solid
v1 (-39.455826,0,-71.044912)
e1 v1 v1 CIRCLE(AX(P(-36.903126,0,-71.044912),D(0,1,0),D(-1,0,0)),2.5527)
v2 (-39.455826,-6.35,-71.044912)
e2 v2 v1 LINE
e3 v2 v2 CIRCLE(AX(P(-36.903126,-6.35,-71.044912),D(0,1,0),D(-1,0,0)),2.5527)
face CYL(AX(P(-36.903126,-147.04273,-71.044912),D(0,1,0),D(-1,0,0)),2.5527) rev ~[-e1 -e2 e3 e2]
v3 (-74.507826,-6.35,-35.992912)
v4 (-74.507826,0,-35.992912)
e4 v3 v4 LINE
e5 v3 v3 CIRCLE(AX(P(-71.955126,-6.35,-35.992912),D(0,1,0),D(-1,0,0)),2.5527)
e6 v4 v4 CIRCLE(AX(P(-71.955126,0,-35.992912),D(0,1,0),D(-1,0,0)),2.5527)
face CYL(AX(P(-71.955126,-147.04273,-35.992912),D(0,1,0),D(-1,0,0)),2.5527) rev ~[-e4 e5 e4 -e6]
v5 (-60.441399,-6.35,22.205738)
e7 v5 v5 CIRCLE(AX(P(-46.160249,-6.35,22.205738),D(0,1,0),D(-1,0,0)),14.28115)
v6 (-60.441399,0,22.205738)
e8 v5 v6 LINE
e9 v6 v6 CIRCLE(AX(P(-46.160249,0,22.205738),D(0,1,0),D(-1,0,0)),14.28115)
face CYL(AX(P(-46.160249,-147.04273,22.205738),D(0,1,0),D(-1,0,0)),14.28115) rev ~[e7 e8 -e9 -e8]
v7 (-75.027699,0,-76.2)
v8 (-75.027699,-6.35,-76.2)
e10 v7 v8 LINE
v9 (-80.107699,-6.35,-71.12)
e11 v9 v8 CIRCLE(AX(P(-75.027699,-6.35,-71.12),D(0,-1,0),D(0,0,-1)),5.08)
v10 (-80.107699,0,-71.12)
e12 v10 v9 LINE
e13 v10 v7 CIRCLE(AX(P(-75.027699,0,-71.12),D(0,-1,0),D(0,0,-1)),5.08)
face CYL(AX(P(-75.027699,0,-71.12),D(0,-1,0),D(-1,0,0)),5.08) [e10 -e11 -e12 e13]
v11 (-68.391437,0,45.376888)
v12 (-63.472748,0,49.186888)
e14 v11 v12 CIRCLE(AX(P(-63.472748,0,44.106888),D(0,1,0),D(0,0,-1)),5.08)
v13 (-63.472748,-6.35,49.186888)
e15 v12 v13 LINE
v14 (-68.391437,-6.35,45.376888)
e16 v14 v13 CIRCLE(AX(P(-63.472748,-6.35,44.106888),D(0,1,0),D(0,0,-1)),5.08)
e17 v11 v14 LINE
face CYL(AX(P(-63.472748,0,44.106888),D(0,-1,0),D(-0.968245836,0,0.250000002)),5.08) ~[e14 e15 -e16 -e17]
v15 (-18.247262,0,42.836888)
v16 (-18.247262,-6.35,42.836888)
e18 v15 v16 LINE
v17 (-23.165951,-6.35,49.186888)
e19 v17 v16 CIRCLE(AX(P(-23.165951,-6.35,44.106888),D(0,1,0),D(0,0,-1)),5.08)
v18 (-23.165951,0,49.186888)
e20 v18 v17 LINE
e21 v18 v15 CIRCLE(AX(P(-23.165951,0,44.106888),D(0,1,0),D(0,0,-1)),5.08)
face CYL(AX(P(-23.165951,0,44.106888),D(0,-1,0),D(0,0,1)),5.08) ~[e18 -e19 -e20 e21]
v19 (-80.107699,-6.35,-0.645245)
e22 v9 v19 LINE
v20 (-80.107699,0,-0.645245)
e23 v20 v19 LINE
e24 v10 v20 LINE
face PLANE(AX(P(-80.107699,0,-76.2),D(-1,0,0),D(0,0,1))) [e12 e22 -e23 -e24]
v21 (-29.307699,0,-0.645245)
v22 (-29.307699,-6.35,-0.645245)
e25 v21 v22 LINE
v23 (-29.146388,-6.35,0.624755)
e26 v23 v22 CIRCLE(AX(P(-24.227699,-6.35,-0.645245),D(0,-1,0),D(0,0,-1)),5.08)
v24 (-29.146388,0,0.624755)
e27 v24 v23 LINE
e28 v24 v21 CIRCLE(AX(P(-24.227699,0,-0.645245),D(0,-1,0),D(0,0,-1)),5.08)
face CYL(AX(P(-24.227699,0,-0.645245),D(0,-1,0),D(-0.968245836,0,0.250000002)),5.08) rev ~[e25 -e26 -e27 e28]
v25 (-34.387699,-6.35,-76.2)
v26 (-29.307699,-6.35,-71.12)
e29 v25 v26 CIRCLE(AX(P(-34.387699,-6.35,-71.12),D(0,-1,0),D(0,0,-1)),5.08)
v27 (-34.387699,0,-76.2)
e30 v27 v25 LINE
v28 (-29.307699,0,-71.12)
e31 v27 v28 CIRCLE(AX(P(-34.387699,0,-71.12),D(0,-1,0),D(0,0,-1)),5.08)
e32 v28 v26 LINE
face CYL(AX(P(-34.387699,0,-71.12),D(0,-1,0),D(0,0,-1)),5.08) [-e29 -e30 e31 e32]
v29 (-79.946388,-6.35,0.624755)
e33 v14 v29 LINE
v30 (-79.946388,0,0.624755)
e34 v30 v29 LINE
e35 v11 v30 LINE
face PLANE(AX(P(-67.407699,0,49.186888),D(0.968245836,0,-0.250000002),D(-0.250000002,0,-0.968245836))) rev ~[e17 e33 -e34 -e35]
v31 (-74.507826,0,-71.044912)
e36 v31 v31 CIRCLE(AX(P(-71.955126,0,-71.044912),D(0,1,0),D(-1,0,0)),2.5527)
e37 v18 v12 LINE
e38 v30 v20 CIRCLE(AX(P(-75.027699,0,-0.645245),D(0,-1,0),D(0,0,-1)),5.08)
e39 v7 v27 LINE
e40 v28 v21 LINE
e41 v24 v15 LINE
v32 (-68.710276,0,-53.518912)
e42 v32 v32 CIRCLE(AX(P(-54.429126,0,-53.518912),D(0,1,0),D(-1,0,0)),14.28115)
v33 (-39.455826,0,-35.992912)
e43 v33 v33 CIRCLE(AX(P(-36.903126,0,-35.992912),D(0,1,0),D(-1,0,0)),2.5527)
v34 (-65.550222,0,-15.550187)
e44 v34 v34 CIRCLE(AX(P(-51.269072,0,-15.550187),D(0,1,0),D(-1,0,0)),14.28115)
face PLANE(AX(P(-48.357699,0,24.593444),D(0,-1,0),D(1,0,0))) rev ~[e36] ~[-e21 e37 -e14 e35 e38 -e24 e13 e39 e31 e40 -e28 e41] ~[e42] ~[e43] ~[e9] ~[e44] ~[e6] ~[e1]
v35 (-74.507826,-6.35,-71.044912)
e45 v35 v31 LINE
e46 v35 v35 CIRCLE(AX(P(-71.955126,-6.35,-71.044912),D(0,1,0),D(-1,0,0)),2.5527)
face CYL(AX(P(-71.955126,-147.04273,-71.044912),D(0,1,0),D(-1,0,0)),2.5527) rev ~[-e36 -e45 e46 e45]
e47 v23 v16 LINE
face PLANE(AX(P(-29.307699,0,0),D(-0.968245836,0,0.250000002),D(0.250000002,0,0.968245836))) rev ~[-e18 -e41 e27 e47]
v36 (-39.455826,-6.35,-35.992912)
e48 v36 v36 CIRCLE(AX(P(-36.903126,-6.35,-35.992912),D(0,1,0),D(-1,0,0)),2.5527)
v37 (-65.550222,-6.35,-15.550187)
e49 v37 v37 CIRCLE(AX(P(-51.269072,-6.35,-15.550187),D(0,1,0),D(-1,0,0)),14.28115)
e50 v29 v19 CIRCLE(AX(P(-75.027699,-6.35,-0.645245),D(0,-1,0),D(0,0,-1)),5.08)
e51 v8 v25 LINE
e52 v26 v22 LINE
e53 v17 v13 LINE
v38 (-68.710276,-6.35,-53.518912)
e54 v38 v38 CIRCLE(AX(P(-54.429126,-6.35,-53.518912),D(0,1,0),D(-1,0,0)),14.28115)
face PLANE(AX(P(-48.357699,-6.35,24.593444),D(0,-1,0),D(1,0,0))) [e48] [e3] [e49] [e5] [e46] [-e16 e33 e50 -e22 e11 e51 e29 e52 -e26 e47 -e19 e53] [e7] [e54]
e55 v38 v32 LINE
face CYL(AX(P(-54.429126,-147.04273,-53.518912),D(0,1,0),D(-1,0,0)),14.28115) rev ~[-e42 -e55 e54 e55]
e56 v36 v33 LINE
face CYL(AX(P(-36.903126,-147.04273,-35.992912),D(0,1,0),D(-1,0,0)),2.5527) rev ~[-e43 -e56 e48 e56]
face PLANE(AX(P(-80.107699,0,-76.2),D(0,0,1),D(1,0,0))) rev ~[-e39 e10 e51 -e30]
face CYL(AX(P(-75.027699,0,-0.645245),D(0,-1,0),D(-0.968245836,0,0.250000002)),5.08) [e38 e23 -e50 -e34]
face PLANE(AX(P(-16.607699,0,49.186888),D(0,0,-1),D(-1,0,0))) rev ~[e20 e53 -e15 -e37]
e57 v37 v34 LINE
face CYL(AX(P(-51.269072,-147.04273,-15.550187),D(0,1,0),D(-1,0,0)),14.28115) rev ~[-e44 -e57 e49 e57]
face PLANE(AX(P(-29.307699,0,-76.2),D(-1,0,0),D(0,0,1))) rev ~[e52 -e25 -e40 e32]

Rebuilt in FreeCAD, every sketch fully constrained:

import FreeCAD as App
import Part
import Sketcher

V = App.Vector
Q = App.Units.Quantity


def edges_at(feature, points):
    """Names of the edges that pass closest to the given points."""
    edges = feature.Shape.Edges
    near = lambda p: min(range(len(edges)), key=lambda i: edges[i].distToShape(Part.Vertex(*p))[0])
    return sorted({f"Edge{near(p) + 1}" for p in points})


def add_polygon(sketch, points):
    """Adds a closed chain of lines whose ends are joined by coincident constraints."""
    first, n = sketch.GeometryCount, len(points)
    for a, b in zip(points, points[1:] + points[:1]):
        sketch.addGeometry(Part.LineSegment(App.Vector(*a, 0), App.Vector(*b, 0)), False)
    for i in range(n):
        sketch.addConstraint(Sketcher.Constraint("Coincident", first + i, 2, first + (i + 1) % n, 1))

doc = App.newDocument("Part")
body = doc.addObject("PartDesign::Body", "Body")

# Sketch on XZ plane
sketch1 = body.newObject("Sketcher::SketchObject", "Sketch")
sketch1.AttachmentSupport = (doc.getObject("XZ_Plane"), [""])
sketch1.MapMode = "FlatFace"
add_polygon(sketch1, [(-67, 49), (-80, 0), (-80, -76), (-29, -76), (-29, 0), (-17, 49)])  # lines 0-5
sketch1.addConstraint(Sketcher.Constraint("Vertical", 1))
sketch1.addConstraint(Sketcher.Constraint("Horizontal", 2))
sketch1.addConstraint(Sketcher.Constraint("Vertical", 3))
sketch1.addConstraint(Sketcher.Constraint("Horizontal", 5))
sketch1.addConstraint(Sketcher.Constraint("PointOnObject", 0, 2, -1))
sketch1.addConstraint(Sketcher.Constraint("PointOnObject", 3, 2, -1))
sketch1.addConstraint(Sketcher.Constraint("Parallel", 0, 4))
sketch1.addConstraint(Sketcher.Constraint("DistanceX", 2, 1, 2, 2, Q("2 in")))
sketch1.addConstraint(Sketcher.Constraint("DistanceY", 1, 2, 1, 1, Q("3 in")))
sketch1.addConstraint(Sketcher.Constraint("Distance", 0, Q("2 in")))
sketch1.addConstraint(Sketcher.Constraint("DistanceX", 3, 2, 4, 2, Q("0.5 in")))
sketch1.addConstraint(Sketcher.Constraint("DistanceX", 0, 2, -1, 1, Q("80.107699 mm")))
pad1 = body.newObject("PartDesign::Pad", "Pad")
pad1.Profile = sketch1
pad1.Length = Q("0.25 in")

# Sketch on XZ plane
sketch2 = body.newObject("Sketcher::SketchObject", "Sketch001")
sketch2.AttachmentSupport = (doc.getObject("XZ_Plane"), [""])
sketch2.MapMode = "FlatFace"
sketch2.AttachmentOffset = App.Placement(V(0, 0, 0.25 * 25.4), App.Rotation())
sketch2.addGeometry(Part.Circle(V(-46, 22, 0), V(0, 0, 1), 14), False)
sketch2.addGeometry(Part.Circle(V(-51, -16, 0), V(0, 0, 1), 14), False)
sketch2.addGeometry(Part.Circle(V(-54, -54, 0), V(0, 0, 1), 14), False)
sketch2.addConstraint(Sketcher.Constraint("Equal", 0, 1))
sketch2.addConstraint(Sketcher.Constraint("Equal", 1, 2))
sketch2.addConstraint(Sketcher.Constraint("Diameter", 0, Q("1.1245 in")))
sketch2.addConstraint(Sketcher.Constraint("DistanceX", 0, 3, -1, 1, Q("46.160249 mm")))
sketch2.addConstraint(Sketcher.Constraint("DistanceY", -1, 1, 0, 3, Q("22.205738 mm")))
sketch2.addConstraint(Sketcher.Constraint("DistanceY", 2, 3, 0, 3, Q("75.72465 mm")))
sketch2.addConstraint(Sketcher.Constraint("DistanceX", 1, 3, -1, 1, Q("51.269072 mm")))
sketch2.addConstraint(Sketcher.Constraint("DistanceY", 1, 3, -1, 1, Q("15.550187 mm")))
sketch2.addConstraint(Sketcher.Constraint("DistanceX", 2, 3, -1, 1, Q("54.429126 mm")))
doc.recompute()
hole = body.newObject("PartDesign::Hole", "Hole")
hole.Profile = sketch2
hole.ThreadType = "None"
hole.Diameter = Q("1.1245 in")
hole.DepthType = "ThroughAll"

# Sketch on XZ plane
sketch3 = body.newObject("Sketcher::SketchObject", "Sketch002")
sketch3.AttachmentSupport = (doc.getObject("XZ_Plane"), [""])
sketch3.MapMode = "FlatFace"
sketch3.AttachmentOffset = App.Placement(V(0, 0, 0.25 * 25.4), App.Rotation())
sketch3.addGeometry(Part.Circle(V(-36.9, -36, 0), V(0, 0, 1), 2.6), False)
sketch3.addGeometry(Part.Circle(V(-36.9, -71, 0), V(0, 0, 1), 2.6), False)
sketch3.addGeometry(Part.Circle(V(-72, -71, 0), V(0, 0, 1), 2.6), False)
sketch3.addGeometry(Part.Circle(V(-72, -36, 0), V(0, 0, 1), 2.6), False)
sketch3.addConstraint(Sketcher.Constraint("Equal", 0, 1))
sketch3.addConstraint(Sketcher.Constraint("Equal", 1, 2))
sketch3.addConstraint(Sketcher.Constraint("Equal", 2, 3))
sketch3.addConstraint(Sketcher.Constraint("Horizontal", 1, 3, 2, 3))
sketch3.addConstraint(Sketcher.Constraint("Horizontal", 0, 3, 3, 3))
sketch3.addConstraint(Sketcher.Constraint("Vertical", 0, 3, 1, 3))
sketch3.addConstraint(Sketcher.Constraint("Vertical", 2, 3, 3, 3))
sketch3.addConstraint(Sketcher.Constraint("Diameter", 0, Q("0.201 in")))
sketch3.addConstraint(Sketcher.Constraint("DistanceY", 1, 3, 0, 3, Q("1.38 in")))
sketch3.addConstraint(Sketcher.Constraint("DistanceX", 2, 3, 1, 3, Q("1.38 in")))
sketch3.addConstraint(Sketcher.Constraint("DistanceY", 0, 3, -1, 1, Q("35.992912 mm")))
sketch3.addConstraint(Sketcher.Constraint("DistanceX", 0, 3, -1, 1, Q("36.903126 mm")))
doc.recompute()
hole2 = body.newObject("PartDesign::Hole", "Hole001")
hole2.Profile = sketch3
hole2.ThreadType = "None"
hole2.Diameter = Q("0.201 in")
hole2.DepthType = "ThroughAll"
doc.recompute()

fillet = body.newObject("PartDesign::Fillet", "Fillet")
fillet.Base = (hole2, edges_at(hole2, [
    (-67.408, -3.175, 49.187),
    (-16.608, -3.175, 49.187),
    (-80.108, -3.175, 0),
    (-80.108, -3.175, -76.2),
    (-29.308, -3.175, -76.2),
    (-29.308, -3.175, 0),
]))
fillet.Radius = Q("0.2 in")

doc.recompute()
